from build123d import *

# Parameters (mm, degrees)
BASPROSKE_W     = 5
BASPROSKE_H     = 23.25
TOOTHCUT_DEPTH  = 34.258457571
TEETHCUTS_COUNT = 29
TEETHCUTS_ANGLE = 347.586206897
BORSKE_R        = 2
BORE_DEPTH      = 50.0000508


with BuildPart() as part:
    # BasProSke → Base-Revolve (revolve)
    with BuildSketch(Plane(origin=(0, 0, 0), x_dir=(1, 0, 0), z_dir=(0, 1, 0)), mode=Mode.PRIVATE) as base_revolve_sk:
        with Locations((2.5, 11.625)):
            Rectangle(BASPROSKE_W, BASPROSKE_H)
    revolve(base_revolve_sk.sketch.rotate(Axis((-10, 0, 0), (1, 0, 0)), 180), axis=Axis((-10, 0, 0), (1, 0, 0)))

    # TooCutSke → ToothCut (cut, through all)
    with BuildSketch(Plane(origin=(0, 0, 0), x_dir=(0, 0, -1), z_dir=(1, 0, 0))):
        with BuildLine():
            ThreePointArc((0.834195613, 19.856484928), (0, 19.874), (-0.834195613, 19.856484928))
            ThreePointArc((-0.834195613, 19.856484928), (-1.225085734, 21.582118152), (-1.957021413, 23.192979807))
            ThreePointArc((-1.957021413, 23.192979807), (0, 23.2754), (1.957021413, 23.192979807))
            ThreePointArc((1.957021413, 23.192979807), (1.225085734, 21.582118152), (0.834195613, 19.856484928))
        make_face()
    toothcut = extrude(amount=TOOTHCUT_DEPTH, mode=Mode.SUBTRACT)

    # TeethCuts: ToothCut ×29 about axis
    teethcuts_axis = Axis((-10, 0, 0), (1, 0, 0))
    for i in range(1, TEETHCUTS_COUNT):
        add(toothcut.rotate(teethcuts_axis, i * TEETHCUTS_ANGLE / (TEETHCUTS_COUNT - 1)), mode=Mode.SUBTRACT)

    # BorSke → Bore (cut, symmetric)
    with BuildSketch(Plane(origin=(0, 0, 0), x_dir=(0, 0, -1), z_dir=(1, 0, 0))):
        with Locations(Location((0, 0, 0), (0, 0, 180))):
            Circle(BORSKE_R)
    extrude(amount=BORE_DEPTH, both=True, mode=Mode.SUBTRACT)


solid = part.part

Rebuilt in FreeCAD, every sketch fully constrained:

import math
import FreeCAD as App
import Part
import Sketcher
from FreeCAD import Vector

doc = App.newDocument("Part")
body = doc.addObject("PartDesign::Body", "Body")

# Sketch on XZ plane
sketch1 = body.newObject("Sketcher::SketchObject", "Sketch")
sketch1.AttachmentSupport = (doc.getObject("XZ_Plane"), [""])
sketch1.MapMode = "FlatFace"
sketch1.addGeometry(Part.LineSegment(Vector(0, -23, 0), Vector(0, 0, 0)), False)
sketch1.addGeometry(Part.LineSegment(Vector(0, 0, 0), Vector(5, 0, 0)), False)
sketch1.addGeometry(Part.LineSegment(Vector(5, 0, 0), Vector(5, -23, 0)), False)
sketch1.addGeometry(Part.LineSegment(Vector(5, -23, 0), Vector(0, -23, 0)), False)
sketch1.addConstraint(Sketcher.Constraint("Coincident", 0, 2, 1, 1))
sketch1.addConstraint(Sketcher.Constraint("Coincident", 1, 2, 2, 1))
sketch1.addConstraint(Sketcher.Constraint("Coincident", 2, 2, 3, 1))
sketch1.addConstraint(Sketcher.Constraint("Coincident", 3, 2, 0, 1))
sketch1.addConstraint(Sketcher.Constraint("Vertical", 0))
sketch1.addConstraint(Sketcher.Constraint("Horizontal", 1))
sketch1.addConstraint(Sketcher.Constraint("Vertical", 2))
sketch1.addConstraint(Sketcher.Constraint("Horizontal", 3))
sketch1.addConstraint(Sketcher.Constraint("Coincident", 0, 2, -1, 1))
sketch1.addConstraint(Sketcher.Constraint("DistanceX", 1, 1, 1, 2, 5.0))
sketch1.addConstraint(Sketcher.Constraint("DistanceY", 0, 1, 0, 2, 23.25))
revolution = body.newObject("PartDesign::Revolution", "Revolution")
revolution.Profile = sketch1
revolution.ReferenceAxis = (sketch1, ["H_Axis"])
revolution.Angle = 360

# Sketch on YZ plane
sketch2 = body.newObject("Sketcher::SketchObject", "Sketch001")
sketch2.AttachmentSupport = (doc.getObject("YZ_Plane"), [""])
sketch2.MapMode = "FlatFace"
sketch2.addGeometry(Part.ArcOfCircle(Part.Circle(Vector(0, 0, 0), Vector(0, 0, 1), 19.9), math.radians(-2.41), math.radians(2.41)), False)
sketch2.addGeometry(Part.ArcOfCircle(Part.Circle(Vector(18.8, -9.5, 0), Vector(0, 0, 1), 8.7), math.radians(60), math.radians(83)), False)
sketch2.addGeometry(Part.ArcOfCircle(Part.Circle(Vector(0, 0, 0), Vector(0, 0, 1), 23.3), math.radians(-4.82), math.radians(4.82)), False)
sketch2.addGeometry(Part.ArcOfCircle(Part.Circle(Vector(18.8, 9.5, 0), Vector(0, 0, 1), 8.7), math.radians(-83), math.radians(-60)), False)
sketch2.addConstraint(Sketcher.Constraint("Coincident", 0, 1, 1, 2))
sketch2.addConstraint(Sketcher.Constraint("Coincident", 1, 1, 2, 1))
sketch2.addConstraint(Sketcher.Constraint("Coincident", 2, 2, 3, 2))
sketch2.addConstraint(Sketcher.Constraint("Coincident", 3, 1, 0, 2))
sketch2.addConstraint(Sketcher.Constraint("Coincident", 0, 3, -1, 1))
sketch2.addConstraint(Sketcher.Constraint("Coincident", 2, 3, -1, 1))
sketch2.addConstraint(Sketcher.Constraint("Equal", 1, 3))
sketch2.addConstraint(Sketcher.Constraint("Symmetric", 1, 3, 3, 3, -1))
sketch2.addConstraint(Sketcher.Constraint("Radius", 1, 8.7))
sketch2.addConstraint(Sketcher.Constraint("Radius", 0, 19.874))
sketch2.addConstraint(Sketcher.Constraint("Radius", 2, 23.2754))
sketch2.addConstraint(Sketcher.Constraint("DistanceX", -1, 1, 1, 1, 23.19298))
sketch2.addConstraint(Sketcher.Constraint("DistanceX", 1, 3, 0, 1, 1.049249))
pocket1 = body.newObject("PartDesign::Pocket", "Pocket")
pocket1.Profile = sketch2
pocket1.Type = "ThroughAll"
pocket1.Reversed = True
doc.recompute()

polarpattern = body.newObject("PartDesign::PolarPattern", "PolarPattern")
polarpattern.Originals = [pocket1]
polarpattern.Axis = (doc.getObject("X_Axis"), [""])
polarpattern.Angle = 360
polarpattern.Occurrences = 29
body.Tip = polarpattern

# Sketch on YZ plane
sketch3 = body.newObject("Sketcher::SketchObject", "Sketch002")
sketch3.AttachmentSupport = (doc.getObject("YZ_Plane"), [""])
sketch3.MapMode = "FlatFace"
sketch3.addGeometry(Part.Circle(Vector(0, 0, 0), Vector(0, 0, 1), 2), False)
sketch3.addConstraint(Sketcher.Constraint("Coincident", 0, 3, -1, 1))
sketch3.addConstraint(Sketcher.Constraint("Diameter", 0, 4.0))
pocket2 = body.newObject("PartDesign::Pocket", "Pocket001")
pocket2.Profile = sketch3
pocket2.Length = 100.000102
pocket2.Midplane = True

doc.recompute()
